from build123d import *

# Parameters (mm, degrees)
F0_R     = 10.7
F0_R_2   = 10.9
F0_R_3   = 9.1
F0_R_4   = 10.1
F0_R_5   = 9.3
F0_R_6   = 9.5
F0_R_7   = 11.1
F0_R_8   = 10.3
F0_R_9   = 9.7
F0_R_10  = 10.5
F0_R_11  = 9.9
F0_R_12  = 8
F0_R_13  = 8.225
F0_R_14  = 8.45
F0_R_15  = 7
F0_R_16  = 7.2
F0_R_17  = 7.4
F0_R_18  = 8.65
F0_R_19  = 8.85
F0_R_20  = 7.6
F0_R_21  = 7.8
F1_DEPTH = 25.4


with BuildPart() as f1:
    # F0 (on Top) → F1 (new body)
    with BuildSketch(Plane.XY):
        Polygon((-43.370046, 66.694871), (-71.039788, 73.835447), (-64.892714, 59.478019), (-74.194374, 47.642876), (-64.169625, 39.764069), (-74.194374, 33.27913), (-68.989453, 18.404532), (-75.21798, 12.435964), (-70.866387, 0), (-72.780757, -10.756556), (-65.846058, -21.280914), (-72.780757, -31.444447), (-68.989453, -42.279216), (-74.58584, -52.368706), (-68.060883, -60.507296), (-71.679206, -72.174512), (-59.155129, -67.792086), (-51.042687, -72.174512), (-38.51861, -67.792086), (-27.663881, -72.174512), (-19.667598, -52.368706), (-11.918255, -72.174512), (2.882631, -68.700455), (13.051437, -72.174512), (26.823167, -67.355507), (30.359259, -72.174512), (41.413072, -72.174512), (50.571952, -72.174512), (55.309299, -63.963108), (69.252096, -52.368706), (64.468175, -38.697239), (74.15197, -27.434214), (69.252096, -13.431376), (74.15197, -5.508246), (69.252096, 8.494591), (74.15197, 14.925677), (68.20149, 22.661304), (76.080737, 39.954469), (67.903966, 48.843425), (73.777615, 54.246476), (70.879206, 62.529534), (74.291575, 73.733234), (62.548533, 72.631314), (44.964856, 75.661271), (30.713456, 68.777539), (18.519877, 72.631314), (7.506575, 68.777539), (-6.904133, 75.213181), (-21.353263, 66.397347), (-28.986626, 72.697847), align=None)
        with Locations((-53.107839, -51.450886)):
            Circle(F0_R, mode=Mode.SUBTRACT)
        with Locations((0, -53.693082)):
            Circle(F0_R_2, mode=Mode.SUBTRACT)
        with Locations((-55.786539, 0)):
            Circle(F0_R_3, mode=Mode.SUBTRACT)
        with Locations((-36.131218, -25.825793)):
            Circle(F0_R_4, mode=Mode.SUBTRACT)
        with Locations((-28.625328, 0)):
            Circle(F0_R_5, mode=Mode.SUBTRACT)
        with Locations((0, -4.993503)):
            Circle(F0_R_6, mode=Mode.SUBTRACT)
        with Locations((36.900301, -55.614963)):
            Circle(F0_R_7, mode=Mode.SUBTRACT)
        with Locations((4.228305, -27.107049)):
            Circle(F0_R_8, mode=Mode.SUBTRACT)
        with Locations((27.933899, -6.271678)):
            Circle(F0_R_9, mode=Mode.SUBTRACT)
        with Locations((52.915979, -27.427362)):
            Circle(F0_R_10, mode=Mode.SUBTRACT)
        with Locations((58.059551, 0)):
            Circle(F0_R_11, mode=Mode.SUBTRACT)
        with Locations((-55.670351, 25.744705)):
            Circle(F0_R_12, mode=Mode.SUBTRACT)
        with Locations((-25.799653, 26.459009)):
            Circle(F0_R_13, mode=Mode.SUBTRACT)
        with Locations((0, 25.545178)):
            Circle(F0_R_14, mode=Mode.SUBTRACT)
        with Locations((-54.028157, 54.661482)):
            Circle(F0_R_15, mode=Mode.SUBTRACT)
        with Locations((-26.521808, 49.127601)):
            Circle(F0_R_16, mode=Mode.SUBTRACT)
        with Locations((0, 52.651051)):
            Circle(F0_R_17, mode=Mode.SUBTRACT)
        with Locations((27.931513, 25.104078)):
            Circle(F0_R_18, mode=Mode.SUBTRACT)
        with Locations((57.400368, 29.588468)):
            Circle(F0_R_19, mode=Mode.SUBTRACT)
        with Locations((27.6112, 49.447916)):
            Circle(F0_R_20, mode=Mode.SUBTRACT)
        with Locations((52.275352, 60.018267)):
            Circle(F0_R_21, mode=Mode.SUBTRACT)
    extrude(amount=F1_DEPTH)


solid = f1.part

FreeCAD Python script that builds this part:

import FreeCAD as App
import Part
import Sketcher

doc = App.newDocument("Part")
body = doc.addObject("PartDesign::Body", "Body")

# Sketch on XY plane
sketch1 = doc.addObject("Sketcher::SketchObject", "Sketch")
body.addObject(sketch1)
sketch1.AttachmentSupport = (doc.XY_Plane, [""])
sketch1.MapMode = "FlatFace"
sketch1.addGeometry([
    Part.LineSegment(App.Vector(-43.370046, 66.694871, 0), App.Vector(-71.039788, 73.835447, 0)),  # 0
    Part.LineSegment(App.Vector(-71.039788, 73.835447, 0), App.Vector(-64.892714, 59.478019, 0)),  # 1
    Part.LineSegment(App.Vector(-64.892714, 59.478019, 0), App.Vector(-74.194374, 47.642876, 0)),  # 2
    Part.LineSegment(App.Vector(-74.194374, 47.642876, 0), App.Vector(-64.169625, 39.764069, 0)),  # 3
    Part.LineSegment(App.Vector(-64.169625, 39.764069, 0), App.Vector(-74.194374, 33.27913, 0)),  # 4
    Part.LineSegment(App.Vector(-74.194374, 33.27913, 0), App.Vector(-68.989453, 18.404532, 0)),  # 5
    Part.LineSegment(App.Vector(-68.989453, 18.404532, 0), App.Vector(-75.21798, 12.435964, 0)),  # 6
    Part.LineSegment(App.Vector(-75.21798, 12.435964, 0), App.Vector(-70.866387, 0, 0)),  # 7
    Part.LineSegment(App.Vector(-70.866387, 0, 0), App.Vector(-72.780757, -10.756556, 0)),  # 8
    Part.LineSegment(App.Vector(-72.780757, -10.756556, 0), App.Vector(-65.846058, -21.280914, 0)),  # 9
    Part.LineSegment(App.Vector(-65.846058, -21.280914, 0), App.Vector(-72.780757, -31.444447, 0)),  # 10
    Part.LineSegment(App.Vector(-72.780757, -31.444447, 0), App.Vector(-68.989453, -42.279216, 0)),  # 11
    Part.LineSegment(App.Vector(-68.989453, -42.279216, 0), App.Vector(-74.58584, -52.368706, 0)),  # 12
    Part.LineSegment(App.Vector(-74.58584, -52.368706, 0), App.Vector(-68.060883, -60.507296, 0)),  # 13
    Part.LineSegment(App.Vector(-68.060883, -60.507296, 0), App.Vector(-71.679206, -72.174512, 0)),  # 14
    Part.LineSegment(App.Vector(-71.679206, -72.174512, 0), App.Vector(-59.155129, -67.792086, 0)),  # 15
    Part.LineSegment(App.Vector(-59.155129, -67.792086, 0), App.Vector(-51.042687, -72.174512, 0)),  # 16
    Part.LineSegment(App.Vector(-51.042687, -72.174512, 0), App.Vector(-38.51861, -67.792086, 0)),  # 17
    Part.LineSegment(App.Vector(-38.51861, -67.792086, 0), App.Vector(-27.663881, -72.174512, 0)),  # 18
    Part.LineSegment(App.Vector(-27.663881, -72.174512, 0), App.Vector(-19.667598, -52.368706, 0)),  # 19
    Part.LineSegment(App.Vector(-19.667598, -52.368706, 0), App.Vector(-11.918255, -72.174512, 0)),  # 20
    Part.LineSegment(App.Vector(-11.918255, -72.174512, 0), App.Vector(2.882631, -68.700455, 0)),  # 21
    Part.LineSegment(App.Vector(2.882631, -68.700455, 0), App.Vector(13.051437, -72.174512, 0)),  # 22
    Part.LineSegment(App.Vector(13.051437, -72.174512, 0), App.Vector(26.823167, -67.355507, 0)),  # 23
    Part.LineSegment(App.Vector(26.823167, -67.355507, 0), App.Vector(30.359259, -72.174512, 0)),  # 24
    Part.LineSegment(App.Vector(30.359259, -72.174512, 0), App.Vector(50.571952, -72.174512, 0)),  # 25
    Part.LineSegment(App.Vector(50.571952, -72.174512, 0), App.Vector(55.309299, -63.963108, 0)),  # 26
    Part.LineSegment(App.Vector(55.309299, -63.963108, 0), App.Vector(69.252096, -52.368706, 0)),  # 27
    Part.LineSegment(App.Vector(69.252096, -52.368706, 0), App.Vector(64.468175, -38.697239, 0)),  # 28
    Part.LineSegment(App.Vector(64.468175, -38.697239, 0), App.Vector(74.15197, -27.434214, 0)),  # 29
    Part.LineSegment(App.Vector(74.15197, -27.434214, 0), App.Vector(69.252096, -13.431376, 0)),  # 30
    Part.LineSegment(App.Vector(69.252096, -13.431376, 0), App.Vector(74.15197, -5.508246, 0)),  # 31
    Part.LineSegment(App.Vector(74.15197, -5.508246, 0), App.Vector(69.252096, 8.494591, 0)),  # 32
    Part.LineSegment(App.Vector(69.252096, 8.494591, 0), App.Vector(74.15197, 14.925677, 0)),  # 33
    Part.LineSegment(App.Vector(74.15197, 14.925677, 0), App.Vector(68.20149, 22.661304, 0)),  # 34
    Part.LineSegment(App.Vector(68.20149, 22.661304, 0), App.Vector(76.080737, 39.954469, 0)),  # 35
    Part.LineSegment(App.Vector(76.080737, 39.954469, 0), App.Vector(67.903966, 48.843425, 0)),  # 36
    Part.LineSegment(App.Vector(67.903966, 48.843425, 0), App.Vector(73.777615, 54.246476, 0)),  # 37
    Part.LineSegment(App.Vector(73.777615, 54.246476, 0), App.Vector(70.879206, 62.529534, 0)),  # 38
    Part.LineSegment(App.Vector(70.879206, 62.529534, 0), App.Vector(74.291575, 73.733234, 0)),  # 39
    Part.LineSegment(App.Vector(74.291575, 73.733234, 0), App.Vector(62.548533, 72.631314, 0)),  # 40
    Part.LineSegment(App.Vector(62.548533, 72.631314, 0), App.Vector(44.964856, 75.661271, 0)),  # 41
    Part.LineSegment(App.Vector(44.964856, 75.661271, 0), App.Vector(30.713456, 68.777539, 0)),  # 42
    Part.LineSegment(App.Vector(30.713456, 68.777539, 0), App.Vector(18.519877, 72.631314, 0)),  # 43
    Part.LineSegment(App.Vector(18.519877, 72.631314, 0), App.Vector(7.506575, 68.777539, 0)),  # 44
    Part.LineSegment(App.Vector(7.506575, 68.777539, 0), App.Vector(-6.904133, 75.213181, 0)),  # 45
    Part.LineSegment(App.Vector(-6.904133, 75.213181, 0), App.Vector(-21.353263, 66.397347, 0)),  # 46
    Part.LineSegment(App.Vector(-21.353263, 66.397347, 0), App.Vector(-28.986626, 72.697847, 0)),  # 47
    Part.LineSegment(App.Vector(-28.986626, 72.697847, 0), App.Vector(-43.370046, 66.694871, 0)),  # 48
    Part.Circle(App.Vector(-53.107839, -51.450886, 0), App.Vector(0, 0, 1), 10.7),  # 49
    Part.Circle(App.Vector(0, -53.693082, 0), App.Vector(0, 0, 1), 10.9),  # 50
    Part.Circle(App.Vector(-36.131218, -25.825793, 0), App.Vector(0, 0, 1), 10.1),  # 51
    Part.Circle(App.Vector(-55.786539, 0, 0), App.Vector(0, 0, 1), 9.1),  # 52
    Part.Circle(App.Vector(-28.625328, 0, 0), App.Vector(0, 0, 1), 9.3),  # 53
    Part.Circle(App.Vector(0, -4.993503, 0), App.Vector(0, 0, 1), 9.5),  # 54
    Part.Circle(App.Vector(36.900301, -55.614963, 0), App.Vector(0, 0, 1), 11.1),  # 55
    Part.Circle(App.Vector(4.228305, -27.107049, 0), App.Vector(0, 0, 1), 10.3),  # 56
    Part.Circle(App.Vector(27.933899, -6.271678, 0), App.Vector(0, 0, 1), 9.7),  # 57
    Part.Circle(App.Vector(52.915979, -27.427362, 0), App.Vector(0, 0, 1), 10.5),  # 58
    Part.Circle(App.Vector(58.059551, 0, 0), App.Vector(0, 0, 1), 9.9),  # 59
    Part.Circle(App.Vector(-55.670351, 25.744705, 0), App.Vector(0, 0, 1), 8),  # 60
    Part.Circle(App.Vector(-25.799653, 26.459009, 0), App.Vector(0, 0, 1), 8.225),  # 61
    Part.Circle(App.Vector(0, 25.545178, 0), App.Vector(0, 0, 1), 8.45),  # 62
    Part.Circle(App.Vector(-54.028157, 54.661482, 0), App.Vector(0, 0, 1), 7),  # 63
    Part.Circle(App.Vector(-26.521808, 49.127601, 0), App.Vector(0, 0, 1), 7.2),  # 64
    Part.Circle(App.Vector(0, 52.651051, 0), App.Vector(0, 0, 1), 7.4),  # 65
    Part.Circle(App.Vector(27.931513, 25.104078, 0), App.Vector(0, 0, 1), 8.65),  # 66
    Part.Circle(App.Vector(57.400368, 29.588468, 0), App.Vector(0, 0, 1), 8.85),  # 67
    Part.Circle(App.Vector(27.6112, 49.447916, 0), App.Vector(0, 0, 1), 7.6),  # 68
    Part.Circle(App.Vector(52.275352, 60.018267, 0), App.Vector(0, 0, 1), 7.8),  # 69
], False)
sketch1.addConstraint([
    Sketcher.Constraint("Coincident", 0, 2, 1, 1),
    Sketcher.Constraint("Coincident", 1, 2, 2, 1),
    Sketcher.Constraint("Coincident", 2, 2, 3, 1),
    Sketcher.Constraint("Coincident", 3, 2, 4, 1),
    Sketcher.Constraint("Coincident", 4, 2, 5, 1),
    Sketcher.Constraint("Coincident", 5, 2, 6, 1),
    Sketcher.Constraint("Coincident", 6, 2, 7, 1),
    Sketcher.Constraint("Coincident", 7, 2, 8, 1),
    Sketcher.Constraint("Coincident", 8, 2, 9, 1),
    Sketcher.Constraint("Coincident", 9, 2, 10, 1),
    Sketcher.Constraint("Coincident", 10, 2, 11, 1),
    Sketcher.Constraint("Coincident", 11, 2, 12, 1),
    Sketcher.Constraint("Coincident", 12, 2, 13, 1),
    Sketcher.Constraint("Coincident", 13, 2, 14, 1),
    Sketcher.Constraint("Coincident", 14, 2, 15, 1),
    Sketcher.Constraint("Coincident", 15, 2, 16, 1),
    Sketcher.Constraint("Coincident", 16, 2, 17, 1),
    Sketcher.Constraint("Coincident", 17, 2, 18, 1),
    Sketcher.Constraint("Coincident", 18, 2, 19, 1),
    Sketcher.Constraint("Coincident", 19, 2, 20, 1),
    Sketcher.Constraint("Coincident", 20, 2, 21, 1),
    Sketcher.Constraint("Coincident", 21, 2, 22, 1),
    Sketcher.Constraint("Coincident", 22, 2, 23, 1),
    Sketcher.Constraint("Coincident", 23, 2, 24, 1),
    Sketcher.Constraint("Coincident", 24, 2, 25, 1),
    Sketcher.Constraint("Coincident", 25, 2, 26, 1),
    Sketcher.Constraint("Coincident", 26, 2, 27, 1),
    Sketcher.Constraint("Coincident", 27, 2, 28, 1),
    Sketcher.Constraint("Coincident", 28, 2, 29, 1),
    Sketcher.Constraint("Coincident", 29, 2, 30, 1),
    Sketcher.Constraint("Coincident", 30, 2, 31, 1),
    Sketcher.Constraint("Coincident", 31, 2, 32, 1),
    Sketcher.Constraint("Coincident", 32, 2, 33, 1),
    Sketcher.Constraint("Coincident", 33, 2, 34, 1),
    Sketcher.Constraint("Coincident", 34, 2, 35, 1),
    Sketcher.Constraint("Coincident", 35, 2, 36, 1),
    Sketcher.Constraint("Coincident", 36, 2, 37, 1),
    Sketcher.Constraint("Coincident", 37, 2, 38, 1),
    Sketcher.Constraint("Coincident", 38, 2, 39, 1),
    Sketcher.Constraint("Coincident", 39, 2, 40, 1),
    Sketcher.Constraint("Coincident", 40, 2, 41, 1),
    Sketcher.Constraint("Coincident", 41, 2, 42, 1),
    Sketcher.Constraint("Coincident", 42, 2, 43, 1),
    Sketcher.Constraint("Coincident", 43, 2, 44, 1),
    Sketcher.Constraint("Coincident", 44, 2, 45, 1),
    Sketcher.Constraint("Coincident", 45, 2, 46, 1),
    Sketcher.Constraint("Coincident", 46, 2, 47, 1),
    Sketcher.Constraint("Coincident", 47, 2, 48, 1),
    Sketcher.Constraint("Coincident", 48, 2, 0, 1),
    Sketcher.Constraint("Horizontal", 25),
    Sketcher.Constraint("PointOnObject", 50, 3, -2),
    Sketcher.Constraint("PointOnObject", 52, 3, -1),
    Sketcher.Constraint("PointOnObject", 53, 3, -1),
    Sketcher.Constraint("PointOnObject", 54, 3, -2),
    Sketcher.Constraint("PointOnObject", 59, 3, -1),
    Sketcher.Constraint("PointOnObject", 62, 3, -2),
    Sketcher.Constraint("PointOnObject", 65, 3, -2),
    Sketcher.Constraint("PointOnObject", 7, 2, -1),
    Sketcher.Constraint("Diameter", 54, 19.0),
    Sketcher.Constraint("Diameter", 58, 21.0),
    Sketcher.Constraint("Diameter", 60, 16.0),
    Sketcher.Constraint("Diameter", 63, 14.0),
    Sketcher.Constraint("Diameter", 49, 21.4),
    Sketcher.Constraint("Diameter", 50, 21.8),
    Sketcher.Constraint("Diameter", 51, 20.2),
    Sketcher.Constraint("Diameter", 52, 18.2),
    Sketcher.Constraint("Diameter", 53, 18.6),
    Sketcher.Constraint("Diameter", 55, 22.2),
    Sketcher.Constraint("Diameter", 56, 20.6),
    Sketcher.Constraint("Diameter", 57, 19.4),
    Sketcher.Constraint("Diameter", 59, 19.8),
    Sketcher.Constraint("Diameter", 62, 16.9),
    Sketcher.Constraint("Diameter", 64, 14.4),
    Sketcher.Constraint("Diameter", 65, 14.8),
    Sketcher.Constraint("Diameter", 66, 17.3),
    Sketcher.Constraint("Diameter", 67, 17.7),
    Sketcher.Constraint("Diameter", 68, 15.2),
    Sketcher.Constraint("Diameter", 69, 15.6),
    Sketcher.Constraint("Diameter", 61, 16.45),
    Sketcher.Constraint("Distance", 28, 14.484299),
    Sketcher.Constraint("Distance", 46, 16.926201),
    Sketcher.Constraint("DistanceX", -1, 1, 55, 3, 36.900301),
    Sketcher.Constraint("DistanceX", -1, 1, 57, 3, 27.933899),
    Sketcher.Constraint("DistanceY", -1, 1, 64, 3, 49.127601),
    Sketcher.Constraint("DistanceX", -1, 1, 68, 3, 27.6112),
    Sketcher.Constraint("DistanceX", 19, 2, -1, 1, 19.667598),
    Sketcher.Constraint("DistanceX", -1, 1, 26, 2, 55.309299),
    Sketcher.Constraint("Distance", 1, 15.618011),
    Sketcher.Constraint("Distance", 3, 12.750341),
    Sketcher.Constraint("Distance", 4, 11.939432),
    Sketcher.Constraint("Distance", 5, 15.758962),
    Sketcher.Constraint("Distance", 7, 13.175339),
    Sketcher.Constraint("Distance", 8, 10.925581),
    Sketcher.Constraint("Distance", 10, 12.303961),
    Sketcher.Constraint("Distance", 12, 11.537649),
    Sketcher.Constraint("Distance", 15, 13.268691),
    Sketcher.Constraint("Distance", 17, 13.268691),
    Sketcher.Constraint("Distance", 20, 21.267869),
    Sketcher.Constraint("Distance", 22, 10.745868),
    Sketcher.Constraint("Distance", 26, 9.479958),
    Sketcher.Constraint("Distance", 27, 18.133718),
    Sketcher.Constraint("Distance", 30, 14.835371),
    Sketcher.Constraint("Distance", 32, 14.83537),
    Sketcher.Constraint("Distance", 35, 19.003581),
    Sketcher.Constraint("Distance", 37, 7.980771),
    Sketcher.Constraint("Distance", 39, 11.711838),
    Sketcher.Constraint("Distance", 40, 11.794629),
    Sketcher.Constraint("Distance", 42, 15.826818),
    Sketcher.Constraint("Distance", 43, 12.788078),
    Sketcher.Constraint("Distance", 45, 15.782458),
    Sketcher.Constraint("DistanceX", 25, 1, 25, 2, 20.212693),
    Sketcher.Constraint("DistanceX", 49, 3, -1, 1, 53.107839),
    Sketcher.Constraint("DistanceY", 50, 3, -1, 1, 53.693082),
    Sketcher.Constraint("DistanceX", 52, 3, -1, 1, 55.786539),
    Sketcher.Constraint("DistanceY", 56, 3, -1, 1, 27.107049),
    Sketcher.Constraint("DistanceX", -1, 1, 58, 3, 52.915979),
    Sketcher.Constraint("DistanceY", 58, 3, -1, 1, 27.427362),
    Sketcher.Constraint("DistanceX", -1, 1, 59, 3, 58.059551),
    Sketcher.Constraint("DistanceX", 60, 3, -1, 1, 55.670351),
    Sketcher.Constraint("DistanceY", -1, 1, 61, 3, 26.459009),
    Sketcher.Constraint("DistanceY", -1, 1, 62, 3, 25.545178),
    Sketcher.Constraint("DistanceX", 64, 3, -1, 1, 26.521808),
    Sketcher.Constraint("DistanceY", -1, 1, 65, 3, 52.651051),
    Sketcher.Constraint("DistanceY", -1, 1, 66, 3, 25.104078),
    Sketcher.Constraint("DistanceX", -1, 1, 69, 3, 52.275352),
    Sketcher.Constraint("DistanceX", 0, 2, -1, 1, 71.039788),
    Sketcher.Constraint("DistanceY", -1, 1, 1, 2, 59.478019),
    Sketcher.Constraint("DistanceY", -1, 1, 3, 2, 39.764069),
    Sketcher.Constraint("DistanceY", -1, 1, 4, 2, 33.27913),
    Sketcher.Constraint("DistanceY", -1, 1, 5, 2, 18.404532),
    Sketcher.Constraint("DistanceX", 6, 2, -1, 1, 75.21798),
    Sketcher.Constraint("DistanceX", 9, 2, -1, 1, 65.846058),
    Sketcher.Constraint("DistanceX", 12, 2, -1, 1, 74.58584),
    Sketcher.Constraint("DistanceY", 14, 2, -1, 1, 72.174512),
    Sketcher.Constraint("DistanceX", 15, 2, -1, 1, 59.155129),
    Sketcher.Constraint("DistanceY", 16, 2, -1, 1, 72.174512),
    Sketcher.Constraint("DistanceX", 17, 2, -1, 1, 38.51861),
    Sketcher.Constraint("DistanceX", 18, 2, -1, 1, 27.663881),
    Sketcher.Constraint("DistanceY", 18, 2, -1, 1, 72.174512),
    Sketcher.Constraint("DistanceY", 20, 2, -1, 1, 72.174512),
    Sketcher.Constraint("DistanceX", -1, 1, 21, 2, 2.882631),
    Sketcher.Constraint("DistanceY", 22, 2, -1, 1, 72.174512),
    Sketcher.Constraint("DistanceX", -1, 1, 24, 2, 30.359259),
    Sketcher.Constraint("DistanceY", 24, 2, -1, 1, 72.174512),
    Sketcher.Constraint("DistanceY", 28, 2, -1, 1, 38.697239),
    Sketcher.Constraint("DistanceX", -1, 1, 29, 2, 74.15197),
    Sketcher.Constraint("DistanceX", -1, 1, 31, 2, 74.15197),
    Sketcher.Constraint("DistanceY", -1, 1, 32, 2, 8.494591),
    Sketcher.Constraint("DistanceX", -1, 1, 33, 2, 74.15197),
    Sketcher.Constraint("DistanceX", -1, 1, 34, 2, 68.20149),
    Sketcher.Constraint("DistanceY", -1, 1, 35, 2, 39.954469),
    Sketcher.Constraint("DistanceY", -1, 1, 41, 2, 75.661271),
    Sketcher.Constraint("DistanceY", -1, 1, 42, 2, 68.777539),
    Sketcher.Constraint("DistanceY", -1, 1, 44, 2, 68.777539),
    Sketcher.Constraint("DistanceY", -1, 1, 45, 2, 75.213181),
    Sketcher.Constraint("DistanceY", -1, 1, 48, 2, 66.694871),
    Sketcher.Constraint("Distance", 0, 28.576257),
    Sketcher.Constraint("Distance", 2, 15.052956),
    Sketcher.Constraint("Distance", 6, 8.626607),
    Sketcher.Constraint("Distance", 9, 12.603657),
    Sketcher.Constraint("Distance", 11, 11.478946),
    Sketcher.Constraint("Distance", 13, 10.431285),
    Sketcher.Constraint("Distance", 14, 12.215408),
    Sketcher.Constraint("Distance", 16, 9.220487),
    Sketcher.Constraint("Distance", 18, 11.706016),
    Sketcher.Constraint("Distance", 19, 21.359085),
    Sketcher.Constraint("Distance", 21, 15.203134),
    Sketcher.Constraint("Distance", 23, 14.590523),
    Sketcher.Constraint("Distance", 24, 5.977186),
    Sketcher.Constraint("Distance", 29, 14.853674),
    Sketcher.Constraint("Distance", 31, 9.315834),
    Sketcher.Constraint("Distance", 33, 8.085025),
    Sketcher.Constraint("Distance", 34, 9.759515),
    Sketcher.Constraint("Distance", 36, 12.077795),
    Sketcher.Constraint("Distance", 38, 8.775524),
    Sketcher.Constraint("Distance", 41, 17.842823),
    Sketcher.Constraint("Distance", 44, 11.668093),
    Sketcher.Constraint("Distance", 47, 9.897703),
    Sketcher.Constraint("Distance", 48, 15.585843),
    Sketcher.Constraint("DistanceY", 49, 3, -1, 1, 51.450886),
    Sketcher.Constraint("DistanceX", 51, 3, -1, 1, 36.131218),
    Sketcher.Constraint("DistanceY", 51, 3, -1, 1, 25.825793),
    Sketcher.Constraint("DistanceX", 53, 3, -1, 1, 28.625328),
    Sketcher.Constraint("DistanceY", 54, 3, -1, 1, 4.993503),
    Sketcher.Constraint("DistanceY", 55, 3, -1, 1, 55.614963),
    Sketcher.Constraint("DistanceX", -1, 1, 56, 3, 4.228305),
    Sketcher.Constraint("DistanceY", 57, 3, -1, 1, 6.271678),
    Sketcher.Constraint("DistanceY", -1, 1, 60, 3, 25.744705),
    Sketcher.Constraint("DistanceX", 61, 3, -1, 1, 25.799653),
    Sketcher.Constraint("DistanceX", 63, 3, -1, 1, 54.028157),
    Sketcher.Constraint("DistanceY", -1, 1, 63, 3, 54.661482),
    Sketcher.Constraint("DistanceX", -1, 1, 66, 3, 27.931513),
    Sketcher.Constraint("DistanceX", -1, 1, 67, 3, 57.400368),
    Sketcher.Constraint("DistanceY", -1, 1, 67, 3, 29.588468),
    Sketcher.Constraint("DistanceY", -1, 1, 68, 3, 49.447916),
    Sketcher.Constraint("DistanceY", -1, 1, 69, 3, 60.018267),
    Sketcher.Constraint("DistanceY", -1, 1, 0, 2, 73.835447),
    Sketcher.Constraint("DistanceX", 2, 2, -1, 1, 74.194374),
    Sketcher.Constraint("DistanceX", 8, 2, -1, 1, 72.780757),
    Sketcher.Constraint("DistanceX", 10, 2, -1, 1, 72.780757),
    Sketcher.Constraint("DistanceX", 11, 2, -1, 1, 68.989453),
    Sketcher.Constraint("DistanceX", -1, 1, 27, 2, 69.252096),
    Sketcher.Constraint("DistanceX", -1, 1, 30, 2, 69.252096),
    Sketcher.Constraint("DistanceX", -1, 1, 36, 2, 67.903966),
    Sketcher.Constraint("DistanceX", -1, 1, 37, 2, 73.777615),
    Sketcher.Constraint("DistanceX", -1, 1, 38, 2, 70.879206),
    Sketcher.Constraint("DistanceX", -1, 1, 39, 2, 74.291575),
    Sketcher.Constraint("DistanceX", -1, 1, 40, 2, 62.548533),
    Sketcher.Constraint("DistanceX", -1, 1, 43, 2, 18.519877),
    Sketcher.Constraint("DistanceX", 46, 2, -1, 1, 21.353263),
])
pad1 = doc.addObject("PartDesign::Pad", "Pad")
body.addObject(pad1)
pad1.Profile = sketch1
pad1.Length = 25.4

doc.recompute()
